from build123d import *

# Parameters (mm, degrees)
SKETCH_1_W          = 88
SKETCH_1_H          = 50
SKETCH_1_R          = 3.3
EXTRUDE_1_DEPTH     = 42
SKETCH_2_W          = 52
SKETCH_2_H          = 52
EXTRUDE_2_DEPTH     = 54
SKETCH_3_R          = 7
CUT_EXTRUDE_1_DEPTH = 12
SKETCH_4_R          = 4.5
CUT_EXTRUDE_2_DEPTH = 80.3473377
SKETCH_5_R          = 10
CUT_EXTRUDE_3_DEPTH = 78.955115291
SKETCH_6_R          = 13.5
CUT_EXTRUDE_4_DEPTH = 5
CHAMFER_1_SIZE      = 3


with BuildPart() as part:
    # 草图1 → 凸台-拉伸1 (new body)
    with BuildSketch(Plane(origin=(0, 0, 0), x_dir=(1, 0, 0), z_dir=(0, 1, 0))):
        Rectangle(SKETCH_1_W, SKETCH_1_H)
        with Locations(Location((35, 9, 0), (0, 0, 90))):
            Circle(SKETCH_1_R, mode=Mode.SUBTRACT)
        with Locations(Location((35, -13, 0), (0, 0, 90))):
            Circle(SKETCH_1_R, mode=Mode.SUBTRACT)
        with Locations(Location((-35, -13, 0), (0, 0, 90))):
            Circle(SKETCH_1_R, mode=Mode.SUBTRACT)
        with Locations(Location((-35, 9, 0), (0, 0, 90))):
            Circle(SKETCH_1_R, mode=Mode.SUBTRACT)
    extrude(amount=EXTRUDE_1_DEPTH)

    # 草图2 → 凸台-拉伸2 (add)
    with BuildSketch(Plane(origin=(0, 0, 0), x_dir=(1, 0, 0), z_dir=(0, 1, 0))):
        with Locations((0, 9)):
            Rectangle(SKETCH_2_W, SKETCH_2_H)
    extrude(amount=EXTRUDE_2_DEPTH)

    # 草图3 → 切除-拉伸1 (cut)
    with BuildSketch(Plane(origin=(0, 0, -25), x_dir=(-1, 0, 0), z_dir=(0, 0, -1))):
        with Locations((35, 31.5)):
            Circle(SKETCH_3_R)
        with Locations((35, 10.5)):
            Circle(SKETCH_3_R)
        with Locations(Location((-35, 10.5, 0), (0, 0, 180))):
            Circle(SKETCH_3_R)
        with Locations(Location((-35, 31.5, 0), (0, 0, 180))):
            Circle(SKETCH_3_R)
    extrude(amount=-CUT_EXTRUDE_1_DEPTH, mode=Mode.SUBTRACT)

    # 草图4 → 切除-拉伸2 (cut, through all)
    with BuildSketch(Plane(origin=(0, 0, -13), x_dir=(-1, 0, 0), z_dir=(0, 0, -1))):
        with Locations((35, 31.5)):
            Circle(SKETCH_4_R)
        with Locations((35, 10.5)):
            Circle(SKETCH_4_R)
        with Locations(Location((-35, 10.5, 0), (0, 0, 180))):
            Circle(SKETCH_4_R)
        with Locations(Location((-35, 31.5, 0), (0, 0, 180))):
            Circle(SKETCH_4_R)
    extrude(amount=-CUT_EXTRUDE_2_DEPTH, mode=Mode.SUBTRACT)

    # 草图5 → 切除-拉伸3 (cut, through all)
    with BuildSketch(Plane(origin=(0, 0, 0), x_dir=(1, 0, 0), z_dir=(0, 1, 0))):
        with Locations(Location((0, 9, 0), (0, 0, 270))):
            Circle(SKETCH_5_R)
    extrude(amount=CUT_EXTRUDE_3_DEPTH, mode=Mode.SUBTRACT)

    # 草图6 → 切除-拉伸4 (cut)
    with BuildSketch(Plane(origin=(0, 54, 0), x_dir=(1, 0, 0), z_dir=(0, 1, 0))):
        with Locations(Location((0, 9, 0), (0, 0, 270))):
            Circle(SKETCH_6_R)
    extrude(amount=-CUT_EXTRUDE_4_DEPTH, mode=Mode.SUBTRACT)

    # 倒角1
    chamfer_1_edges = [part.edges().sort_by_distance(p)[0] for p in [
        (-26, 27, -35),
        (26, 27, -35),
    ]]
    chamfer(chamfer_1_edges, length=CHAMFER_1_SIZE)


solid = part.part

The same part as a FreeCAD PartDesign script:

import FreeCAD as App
import Part
import Sketcher
from FreeCAD import Vector


def edges_at(feature, points):
    """Names of the edges that pass closest to the given points."""
    edges = feature.Shape.Edges
    near = lambda p: min(range(len(edges)), key=lambda i: edges[i].distToShape(Part.Vertex(*p))[0])
    return sorted({f"Edge{near(p) + 1}" for p in points})

doc = App.newDocument("Part")
body = doc.addObject("PartDesign::Body", "Body")

# Sketch on XZ plane
sketch1 = doc.addObject("Sketcher::SketchObject", "Sketch")
body.addObject(sketch1)
sketch1.AttachmentSupport = (doc.XZ_Plane, [""])
sketch1.MapMode = "FlatFace"
sketch1.addGeometry([
    Part.LineSegment(Vector(-44, -25, 0), Vector(-44, 25, 0)),  # 0
    Part.LineSegment(Vector(-44, 25, 0), Vector(44, 25, 0)),  # 1
    Part.LineSegment(Vector(44, 25, 0), Vector(44, -25, 0)),  # 2
    Part.LineSegment(Vector(44, -25, 0), Vector(-44, -25, 0)),  # 3
    Part.Circle(Vector(-35, 13, 0), Vector(0, 0, 1), 3.3),  # 4
    Part.Circle(Vector(35, 13, 0), Vector(0, 0, 1), 3.3),  # 5
    Part.Circle(Vector(-35, -9, 0), Vector(0, 0, 1), 3.3),  # 6
    Part.Circle(Vector(35, -9, 0), Vector(0, 0, 1), 3.3),  # 7
], False)
sketch1.addConstraint([
    Sketcher.Constraint("Coincident", 0, 2, 1, 1),
    Sketcher.Constraint("Coincident", 1, 2, 2, 1),
    Sketcher.Constraint("Coincident", 2, 2, 3, 1),
    Sketcher.Constraint("Coincident", 3, 2, 0, 1),
    Sketcher.Constraint("Vertical", 0),
    Sketcher.Constraint("Horizontal", 1),
    Sketcher.Constraint("Vertical", 2),
    Sketcher.Constraint("Horizontal", 3),
    Sketcher.Constraint("Equal", 4, 5),
    Sketcher.Constraint("Equal", 5, 6),
    Sketcher.Constraint("Equal", 6, 7),
    Sketcher.Constraint("Symmetric", 0, 2, 2, 2, -1, 1),
    Sketcher.Constraint("Symmetric", 4, 3, 5, 3, -2),
    Sketcher.Constraint("Symmetric", 6, 3, 7, 3, -2),
    Sketcher.Constraint("Vertical", 4, 3, 6, 3),
    Sketcher.Constraint("Diameter", 4, 6.6),
    Sketcher.Constraint("DistanceX", 1, 1, 1, 2, 88.0),
    Sketcher.Constraint("DistanceY", 0, 1, 0, 2, 50.0),
    Sketcher.Constraint("DistanceX", 4, 3, -1, 1, 35.0),
    Sketcher.Constraint("DistanceY", -1, 1, 4, 3, 13.0),
    Sketcher.Constraint("DistanceY", 6, 3, -1, 1, 9.0),
])
pad1 = doc.addObject("PartDesign::Pad", "Pad")
body.addObject(pad1)
pad1.Profile = sketch1
pad1.Length = 42
pad1.Reversed = True

# Sketch on XZ plane
sketch2 = doc.addObject("Sketcher::SketchObject", "Sketch001")
body.addObject(sketch2)
sketch2.AttachmentSupport = (doc.XZ_Plane, [""])
sketch2.MapMode = "FlatFace"
sketch2.addGeometry([
    Part.LineSegment(Vector(-26, -35, 0), Vector(-26, 17, 0)),
    Part.LineSegment(Vector(-26, 17, 0), Vector(26, 17, 0)),
    Part.LineSegment(Vector(26, 17, 0), Vector(26, -35, 0)),
    Part.LineSegment(Vector(26, -35, 0), Vector(-26, -35, 0)),
], False)
sketch2.addConstraint([
    Sketcher.Constraint("Coincident", 0, 2, 1, 1),
    Sketcher.Constraint("Coincident", 1, 2, 2, 1),
    Sketcher.Constraint("Coincident", 2, 2, 3, 1),
    Sketcher.Constraint("Coincident", 3, 2, 0, 1),
    Sketcher.Constraint("Vertical", 0),
    Sketcher.Constraint("Horizontal", 1),
    Sketcher.Constraint("Vertical", 2),
    Sketcher.Constraint("Horizontal", 3),
    Sketcher.Constraint("Equal", 3, 0),
    Sketcher.Constraint("DistanceX", 1, 1, 1, 2, 52.0),
    Sketcher.Constraint("DistanceX", 0, 2, -1, 1, 26.0),
    Sketcher.Constraint("DistanceY", -1, 1, 0, 2, 17.0),
])
pad2 = doc.addObject("PartDesign::Pad", "Pad001")
body.addObject(pad2)
pad2.Profile = sketch2
pad2.Length = 54
pad2.Reversed = True

# Sketch on XY plane
sketch3 = doc.addObject("Sketcher::SketchObject", "Sketch002")
body.addObject(sketch3)
sketch3.AttachmentSupport = (doc.XY_Plane, [""])
sketch3.MapMode = "FlatFace"
sketch3.AttachmentOffset = App.Placement(Vector(0, 0, -25), App.Rotation())
sketch3.addGeometry([
    Part.Circle(Vector(-35, 32, 0), Vector(0, 0, 1), 7),
    Part.Circle(Vector(-35, 10, 0), Vector(0, 0, 1), 7),
    Part.Circle(Vector(35, 10, 0), Vector(0, 0, 1), 7),
    Part.Circle(Vector(35, 32, 0), Vector(0, 0, 1), 7),
], False)
sketch3.addConstraint([
    Sketcher.Constraint("Equal", 0, 1),
    Sketcher.Constraint("Equal", 1, 2),
    Sketcher.Constraint("Equal", 2, 3),
    Sketcher.Constraint("Symmetric", 1, 3, 2, 3, -2),
    Sketcher.Constraint("Symmetric", 0, 3, 3, 3, -2),
    Sketcher.Constraint("Vertical", 0, 3, 1, 3),
    Sketcher.Constraint("Diameter", 0, 14.0),
    Sketcher.Constraint("DistanceX", 0, 3, -1, 1, 35.0),
    Sketcher.Constraint("DistanceY", 1, 3, 0, 3, 21.0),
    Sketcher.Constraint("DistanceY", -1, 1, 0, 3, 31.5),
])
pocket1 = doc.addObject("PartDesign::Pocket", "Pocket")
body.addObject(pocket1)
pocket1.Profile = sketch3
pocket1.Length = 12
pocket1.Reversed = True

# Sketch on XY plane
sketch4 = doc.addObject("Sketcher::SketchObject", "Sketch003")
body.addObject(sketch4)
sketch4.AttachmentSupport = (doc.XY_Plane, [""])
sketch4.MapMode = "FlatFace"
sketch4.AttachmentOffset = App.Placement(Vector(0, 0, -13), App.Rotation())
sketch4.addGeometry([
    Part.Circle(Vector(-35, 31.5, 0), Vector(0, 0, 1), 4.5),
    Part.Circle(Vector(-35, 10.5, 0), Vector(0, 0, 1), 4.5),
    Part.Circle(Vector(35, 10.5, 0), Vector(0, 0, 1), 4.5),
    Part.Circle(Vector(35, 31.5, 0), Vector(0, 0, 1), 4.5),
], False)
sketch4.addConstraint([
    Sketcher.Constraint("Equal", 0, 1),
    Sketcher.Constraint("Equal", 1, 2),
    Sketcher.Constraint("Equal", 2, 3),
    Sketcher.Constraint("Symmetric", 1, 3, 2, 3, -2),
    Sketcher.Constraint("Symmetric", 0, 3, 3, 3, -2),
    Sketcher.Constraint("Vertical", 0, 3, 1, 3),
    Sketcher.Constraint("Diameter", 0, 9.0),
    Sketcher.Constraint("DistanceX", 0, 3, -1, 1, 35.0),
    Sketcher.Constraint("DistanceY", 1, 3, 0, 3, 21.0),
    Sketcher.Constraint("DistanceY", -1, 1, 0, 3, 31.5),
])
pocket2 = doc.addObject("PartDesign::Pocket", "Pocket001")
body.addObject(pocket2)
pocket2.Profile = sketch4
pocket2.Type = "ThroughAll"
pocket2.Reversed = True

# Sketch on XZ plane
sketch5 = doc.addObject("Sketcher::SketchObject", "Sketch004")
body.addObject(sketch5)
sketch5.AttachmentSupport = (doc.XZ_Plane, [""])
sketch5.MapMode = "FlatFace"
sketch5.addGeometry(Part.Circle(Vector(0, -9, 0), Vector(0, 0, 1), 10), False)
sketch5.addConstraint([
    Sketcher.Constraint("PointOnObject", 0, 3, -2),
    Sketcher.Constraint("Diameter", 0, 20.0),
    Sketcher.Constraint("DistanceY", 0, 3, -1, 1, 9.0),
])
pocket3 = doc.addObject("PartDesign::Pocket", "Pocket002")
body.addObject(pocket3)
pocket3.Profile = sketch5
pocket3.Type = "ThroughAll"

# Sketch on XZ plane
sketch6 = doc.addObject("Sketcher::SketchObject", "Sketch005")
body.addObject(sketch6)
sketch6.AttachmentSupport = (doc.XZ_Plane, [""])
sketch6.MapMode = "FlatFace"
sketch6.AttachmentOffset = App.Placement(Vector(0, 0, -54), App.Rotation())
sketch6.addGeometry(Part.Circle(Vector(0, -9, 0), Vector(0, 0, 1), 14), False)
sketch6.addConstraint([
    Sketcher.Constraint("PointOnObject", 0, 3, -2),
    Sketcher.Constraint("Diameter", 0, 27.0),
    Sketcher.Constraint("DistanceY", 0, 3, -1, 1, 9.0),
])
pocket4 = doc.addObject("PartDesign::Pocket", "Pocket003")
body.addObject(pocket4)
pocket4.Profile = sketch6
pocket4.Length = 5
pocket4.Reversed = True
doc.recompute()

chamfer = doc.addObject("PartDesign::Chamfer", "Chamfer")
body.addObject(chamfer)
chamfer.Base = (pocket4, edges_at(pocket4, [(-26, 27, -35), (26, 27, -35)]))
chamfer.Size = 3

doc.recompute()
